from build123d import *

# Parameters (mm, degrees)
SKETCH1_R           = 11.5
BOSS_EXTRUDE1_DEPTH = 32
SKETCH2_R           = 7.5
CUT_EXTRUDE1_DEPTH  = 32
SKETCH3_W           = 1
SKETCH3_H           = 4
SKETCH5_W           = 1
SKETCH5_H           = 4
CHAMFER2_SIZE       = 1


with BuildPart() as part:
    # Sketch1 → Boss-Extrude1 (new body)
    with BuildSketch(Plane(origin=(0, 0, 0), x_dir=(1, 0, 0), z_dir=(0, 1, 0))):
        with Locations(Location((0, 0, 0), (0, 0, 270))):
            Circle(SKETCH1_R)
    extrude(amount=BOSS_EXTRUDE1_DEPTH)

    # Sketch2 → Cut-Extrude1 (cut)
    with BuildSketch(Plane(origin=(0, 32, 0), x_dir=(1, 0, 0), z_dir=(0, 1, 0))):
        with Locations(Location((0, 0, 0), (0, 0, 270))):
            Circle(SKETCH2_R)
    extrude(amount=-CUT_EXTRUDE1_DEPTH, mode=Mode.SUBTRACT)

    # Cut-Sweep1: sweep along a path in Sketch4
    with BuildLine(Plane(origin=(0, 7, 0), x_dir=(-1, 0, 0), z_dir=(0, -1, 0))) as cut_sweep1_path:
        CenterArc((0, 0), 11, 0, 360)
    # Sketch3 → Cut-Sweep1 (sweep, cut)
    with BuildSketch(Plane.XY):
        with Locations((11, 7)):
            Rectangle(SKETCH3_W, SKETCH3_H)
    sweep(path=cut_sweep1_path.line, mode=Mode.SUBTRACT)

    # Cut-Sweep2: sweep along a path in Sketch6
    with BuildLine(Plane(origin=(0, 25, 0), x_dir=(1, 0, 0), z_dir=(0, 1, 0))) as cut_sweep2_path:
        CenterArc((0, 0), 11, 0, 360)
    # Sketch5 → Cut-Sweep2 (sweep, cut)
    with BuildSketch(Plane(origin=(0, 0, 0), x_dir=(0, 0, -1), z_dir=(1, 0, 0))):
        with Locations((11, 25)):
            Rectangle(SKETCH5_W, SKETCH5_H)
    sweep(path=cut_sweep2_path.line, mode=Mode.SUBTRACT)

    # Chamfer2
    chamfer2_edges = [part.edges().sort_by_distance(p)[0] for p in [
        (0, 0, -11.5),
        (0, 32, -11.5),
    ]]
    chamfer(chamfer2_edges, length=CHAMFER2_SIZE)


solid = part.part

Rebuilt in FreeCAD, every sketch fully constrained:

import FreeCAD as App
import Part
import Sketcher
Q = App.Units.Quantity


def edges_at(feature, points):
    """Names of the edges that pass closest to the given points."""
    edges = feature.Shape.Edges
    near = lambda p: min(range(len(edges)), key=lambda i: edges[i].distToShape(Part.Vertex(*p))[0])
    return sorted({f"Edge{near(p) + 1}" for p in points})


def add_polygon(sketch, points):
    """Adds a closed chain of lines whose ends are joined by coincident constraints."""
    first, n = sketch.GeometryCount, len(points)
    for a, b in zip(points, points[1:] + points[:1]):
        sketch.addGeometry(Part.LineSegment(App.Vector(*a, 0), App.Vector(*b, 0)), False)
    for i in range(n):
        sketch.addConstraint(Sketcher.Constraint("Coincident", first + i, 2, first + (i + 1) % n, 1))

doc = App.newDocument("Part")
params = doc.addObject("Spreadsheet::Sheet", "Params")
for row, (alias, value) in enumerate([
    ("sketch1_diameter", "23 mm"),
    ("pad1_length", "32 mm"),
    ("sketch2_diameter", "15 mm"),
    ("pocket1_length", "32 mm"),
    ("sketch3_width", "1 mm"),
    ("sketch3_height", "4 mm"),
    ("sketch4_diameter", "22 mm"),
    ("sketch5_width", "4 mm"),
    ("sketch5_height", "1 mm"),
    ("sketch6_diameter", "22 mm"),
    ("chamfer_size", "1 mm"),
], start=1):
    params.set(f"A{row}", alias)
    params.set(f"B{row}", "=" + value)
    params.setAlias(f"B{row}", alias)

body = doc.addObject("PartDesign::Body", "Body")

# Sketch on XZ plane
sketch1 = body.newObject("Sketcher::SketchObject", "Sketch")
sketch1.AttachmentSupport = (doc.getObject("XZ_Plane"), [""])
sketch1.MapMode = "FlatFace"
sketch1.addGeometry(Part.Circle(App.Vector(0, 0, 0), App.Vector(0, 0, 1), 11.5), False)
sketch1.addConstraint([
    Sketcher.Constraint("Coincident", 0, 3, -1, 1),
    Sketcher.Constraint("Diameter", 0, Q("23 mm")),
])
sketch1.setExpression("Constraints[1]", "Params.sketch1_diameter")
pad1 = body.newObject("PartDesign::Pad", "Pad")
pad1.Profile = sketch1
pad1.setExpression("Length", "Params.pad1_length")
pad1.Reversed = True

# Sketch on XZ plane
sketch2 = body.newObject("Sketcher::SketchObject", "Sketch001")
sketch2.AttachmentSupport = (doc.getObject("XZ_Plane"), [""])
sketch2.MapMode = "FlatFace"
sketch2.AttachmentOffset = App.Placement(App.Vector(0, 0, -32), App.Rotation())
sketch2.addGeometry(Part.Circle(App.Vector(0, 0, 0), App.Vector(0, 0, 1), 7.5), False)
sketch2.addConstraint([
    Sketcher.Constraint("Coincident", 0, 3, -1, 1),
    Sketcher.Constraint("Diameter", 0, Q("15 mm")),
])
sketch2.setExpression("Constraints[1]", "Params.sketch2_diameter")
pocket1 = body.newObject("PartDesign::Pocket", "Pocket")
pocket1.Profile = sketch2
pocket1.setExpression("Length", "Params.pocket1_length")
pocket1.Reversed = True

# Sketch on XY plane
sketch3 = body.newObject("Sketcher::SketchObject", "Sketch002")
sketch3.AttachmentSupport = (doc.getObject("XY_Plane"), [""])
sketch3.MapMode = "FlatFace"
add_polygon(sketch3, [(10.5, 9), (10.5, 5), (11.5, 5), (11.5, 9)])  # lines 0-3
sketch3.addConstraint([
    Sketcher.Constraint("Vertical", 0),
    Sketcher.Constraint("Horizontal", 1),
    Sketcher.Constraint("Vertical", 2),
    Sketcher.Constraint("Horizontal", 3),
    Sketcher.Constraint("DistanceX", 1, 1, 1, 2, Q("1 mm")),
    Sketcher.Constraint("DistanceY", 0, 2, 0, 1, Q("4 mm")),
    Sketcher.Constraint("DistanceY", -1, 1, 0, 2, Q("5 mm")),
    Sketcher.Constraint("DistanceX", -1, 1, 0, 2, Q("10.5 mm")),
])
sketch3.setExpression("Constraints[8]", "Params.sketch3_width")
sketch3.setExpression("Constraints[9]", "Params.sketch3_height")

# Sketch on XZ plane
sketch4 = body.newObject("Sketcher::SketchObject", "Sketch003")
sketch4.AttachmentSupport = (doc.getObject("XZ_Plane"), [""])
sketch4.MapMode = "FlatFace"
sketch4.AttachmentOffset = App.Placement(App.Vector(0, 0, -7), App.Rotation())
sketch4.addGeometry(Part.Circle(App.Vector(0, 0, 0), App.Vector(0, 0, 1), 11), False)
sketch4.addConstraint([
    Sketcher.Constraint("Coincident", 0, 3, -1, 1),
    Sketcher.Constraint("Diameter", 0, Q("22 mm")),
])
sketch4.setExpression("Constraints[1]", "Params.sketch4_diameter")
doc.recompute()

subtractivepipe = body.newObject("PartDesign::SubtractivePipe", "SubtractivePipe")
subtractivepipe.Profile = sketch3
subtractivepipe.Spine = (sketch4, ["Edge1"])

# Sketch on YZ plane
sketch5 = body.newObject("Sketcher::SketchObject", "Sketch004")
sketch5.AttachmentSupport = (doc.getObject("YZ_Plane"), [""])
sketch5.MapMode = "FlatFace"
add_polygon(sketch5, [(27, -10.5), (23, -10.5), (23, -11.5), (27, -11.5)])  # lines 0-3
sketch5.addConstraint([
    Sketcher.Constraint("Horizontal", 0),
    Sketcher.Constraint("Vertical", 1),
    Sketcher.Constraint("Horizontal", 2),
    Sketcher.Constraint("Vertical", 3),
    Sketcher.Constraint("DistanceX", 0, 2, 0, 1, Q("4 mm")),
    Sketcher.Constraint("DistanceY", 1, 2, 1, 1, Q("1 mm")),
    Sketcher.Constraint("DistanceX", -1, 1, 0, 2, Q("23 mm")),
    Sketcher.Constraint("DistanceY", 0, 2, -1, 1, Q("10.5 mm")),
])
sketch5.setExpression("Constraints[8]", "Params.sketch5_width")
sketch5.setExpression("Constraints[9]", "Params.sketch5_height")

# Sketch on XZ plane
sketch6 = body.newObject("Sketcher::SketchObject", "Sketch005")
sketch6.AttachmentSupport = (doc.getObject("XZ_Plane"), [""])
sketch6.MapMode = "FlatFace"
sketch6.AttachmentOffset = App.Placement(App.Vector(0, 0, -25), App.Rotation())
sketch6.addGeometry(Part.Circle(App.Vector(0, 0, 0), App.Vector(0, 0, 1), 11), False)
sketch6.addConstraint([
    Sketcher.Constraint("Coincident", 0, 3, -1, 1),
    Sketcher.Constraint("Diameter", 0, Q("22 mm")),
])
sketch6.setExpression("Constraints[1]", "Params.sketch6_diameter")
doc.recompute()

subtractivepipe2 = body.newObject("PartDesign::SubtractivePipe", "SubtractivePipe001")
subtractivepipe2.Profile = sketch5
subtractivepipe2.Spine = (sketch6, ["Edge1"])
doc.recompute()

chamfer = body.newObject("PartDesign::Chamfer", "Chamfer")
chamfer.Base = (subtractivepipe2, edges_at(subtractivepipe2, [(0, 0, -11.5), (0, 32, -11.5)]))
chamfer.setExpression("Size", "Params.chamfer_size")

doc.recompute()
